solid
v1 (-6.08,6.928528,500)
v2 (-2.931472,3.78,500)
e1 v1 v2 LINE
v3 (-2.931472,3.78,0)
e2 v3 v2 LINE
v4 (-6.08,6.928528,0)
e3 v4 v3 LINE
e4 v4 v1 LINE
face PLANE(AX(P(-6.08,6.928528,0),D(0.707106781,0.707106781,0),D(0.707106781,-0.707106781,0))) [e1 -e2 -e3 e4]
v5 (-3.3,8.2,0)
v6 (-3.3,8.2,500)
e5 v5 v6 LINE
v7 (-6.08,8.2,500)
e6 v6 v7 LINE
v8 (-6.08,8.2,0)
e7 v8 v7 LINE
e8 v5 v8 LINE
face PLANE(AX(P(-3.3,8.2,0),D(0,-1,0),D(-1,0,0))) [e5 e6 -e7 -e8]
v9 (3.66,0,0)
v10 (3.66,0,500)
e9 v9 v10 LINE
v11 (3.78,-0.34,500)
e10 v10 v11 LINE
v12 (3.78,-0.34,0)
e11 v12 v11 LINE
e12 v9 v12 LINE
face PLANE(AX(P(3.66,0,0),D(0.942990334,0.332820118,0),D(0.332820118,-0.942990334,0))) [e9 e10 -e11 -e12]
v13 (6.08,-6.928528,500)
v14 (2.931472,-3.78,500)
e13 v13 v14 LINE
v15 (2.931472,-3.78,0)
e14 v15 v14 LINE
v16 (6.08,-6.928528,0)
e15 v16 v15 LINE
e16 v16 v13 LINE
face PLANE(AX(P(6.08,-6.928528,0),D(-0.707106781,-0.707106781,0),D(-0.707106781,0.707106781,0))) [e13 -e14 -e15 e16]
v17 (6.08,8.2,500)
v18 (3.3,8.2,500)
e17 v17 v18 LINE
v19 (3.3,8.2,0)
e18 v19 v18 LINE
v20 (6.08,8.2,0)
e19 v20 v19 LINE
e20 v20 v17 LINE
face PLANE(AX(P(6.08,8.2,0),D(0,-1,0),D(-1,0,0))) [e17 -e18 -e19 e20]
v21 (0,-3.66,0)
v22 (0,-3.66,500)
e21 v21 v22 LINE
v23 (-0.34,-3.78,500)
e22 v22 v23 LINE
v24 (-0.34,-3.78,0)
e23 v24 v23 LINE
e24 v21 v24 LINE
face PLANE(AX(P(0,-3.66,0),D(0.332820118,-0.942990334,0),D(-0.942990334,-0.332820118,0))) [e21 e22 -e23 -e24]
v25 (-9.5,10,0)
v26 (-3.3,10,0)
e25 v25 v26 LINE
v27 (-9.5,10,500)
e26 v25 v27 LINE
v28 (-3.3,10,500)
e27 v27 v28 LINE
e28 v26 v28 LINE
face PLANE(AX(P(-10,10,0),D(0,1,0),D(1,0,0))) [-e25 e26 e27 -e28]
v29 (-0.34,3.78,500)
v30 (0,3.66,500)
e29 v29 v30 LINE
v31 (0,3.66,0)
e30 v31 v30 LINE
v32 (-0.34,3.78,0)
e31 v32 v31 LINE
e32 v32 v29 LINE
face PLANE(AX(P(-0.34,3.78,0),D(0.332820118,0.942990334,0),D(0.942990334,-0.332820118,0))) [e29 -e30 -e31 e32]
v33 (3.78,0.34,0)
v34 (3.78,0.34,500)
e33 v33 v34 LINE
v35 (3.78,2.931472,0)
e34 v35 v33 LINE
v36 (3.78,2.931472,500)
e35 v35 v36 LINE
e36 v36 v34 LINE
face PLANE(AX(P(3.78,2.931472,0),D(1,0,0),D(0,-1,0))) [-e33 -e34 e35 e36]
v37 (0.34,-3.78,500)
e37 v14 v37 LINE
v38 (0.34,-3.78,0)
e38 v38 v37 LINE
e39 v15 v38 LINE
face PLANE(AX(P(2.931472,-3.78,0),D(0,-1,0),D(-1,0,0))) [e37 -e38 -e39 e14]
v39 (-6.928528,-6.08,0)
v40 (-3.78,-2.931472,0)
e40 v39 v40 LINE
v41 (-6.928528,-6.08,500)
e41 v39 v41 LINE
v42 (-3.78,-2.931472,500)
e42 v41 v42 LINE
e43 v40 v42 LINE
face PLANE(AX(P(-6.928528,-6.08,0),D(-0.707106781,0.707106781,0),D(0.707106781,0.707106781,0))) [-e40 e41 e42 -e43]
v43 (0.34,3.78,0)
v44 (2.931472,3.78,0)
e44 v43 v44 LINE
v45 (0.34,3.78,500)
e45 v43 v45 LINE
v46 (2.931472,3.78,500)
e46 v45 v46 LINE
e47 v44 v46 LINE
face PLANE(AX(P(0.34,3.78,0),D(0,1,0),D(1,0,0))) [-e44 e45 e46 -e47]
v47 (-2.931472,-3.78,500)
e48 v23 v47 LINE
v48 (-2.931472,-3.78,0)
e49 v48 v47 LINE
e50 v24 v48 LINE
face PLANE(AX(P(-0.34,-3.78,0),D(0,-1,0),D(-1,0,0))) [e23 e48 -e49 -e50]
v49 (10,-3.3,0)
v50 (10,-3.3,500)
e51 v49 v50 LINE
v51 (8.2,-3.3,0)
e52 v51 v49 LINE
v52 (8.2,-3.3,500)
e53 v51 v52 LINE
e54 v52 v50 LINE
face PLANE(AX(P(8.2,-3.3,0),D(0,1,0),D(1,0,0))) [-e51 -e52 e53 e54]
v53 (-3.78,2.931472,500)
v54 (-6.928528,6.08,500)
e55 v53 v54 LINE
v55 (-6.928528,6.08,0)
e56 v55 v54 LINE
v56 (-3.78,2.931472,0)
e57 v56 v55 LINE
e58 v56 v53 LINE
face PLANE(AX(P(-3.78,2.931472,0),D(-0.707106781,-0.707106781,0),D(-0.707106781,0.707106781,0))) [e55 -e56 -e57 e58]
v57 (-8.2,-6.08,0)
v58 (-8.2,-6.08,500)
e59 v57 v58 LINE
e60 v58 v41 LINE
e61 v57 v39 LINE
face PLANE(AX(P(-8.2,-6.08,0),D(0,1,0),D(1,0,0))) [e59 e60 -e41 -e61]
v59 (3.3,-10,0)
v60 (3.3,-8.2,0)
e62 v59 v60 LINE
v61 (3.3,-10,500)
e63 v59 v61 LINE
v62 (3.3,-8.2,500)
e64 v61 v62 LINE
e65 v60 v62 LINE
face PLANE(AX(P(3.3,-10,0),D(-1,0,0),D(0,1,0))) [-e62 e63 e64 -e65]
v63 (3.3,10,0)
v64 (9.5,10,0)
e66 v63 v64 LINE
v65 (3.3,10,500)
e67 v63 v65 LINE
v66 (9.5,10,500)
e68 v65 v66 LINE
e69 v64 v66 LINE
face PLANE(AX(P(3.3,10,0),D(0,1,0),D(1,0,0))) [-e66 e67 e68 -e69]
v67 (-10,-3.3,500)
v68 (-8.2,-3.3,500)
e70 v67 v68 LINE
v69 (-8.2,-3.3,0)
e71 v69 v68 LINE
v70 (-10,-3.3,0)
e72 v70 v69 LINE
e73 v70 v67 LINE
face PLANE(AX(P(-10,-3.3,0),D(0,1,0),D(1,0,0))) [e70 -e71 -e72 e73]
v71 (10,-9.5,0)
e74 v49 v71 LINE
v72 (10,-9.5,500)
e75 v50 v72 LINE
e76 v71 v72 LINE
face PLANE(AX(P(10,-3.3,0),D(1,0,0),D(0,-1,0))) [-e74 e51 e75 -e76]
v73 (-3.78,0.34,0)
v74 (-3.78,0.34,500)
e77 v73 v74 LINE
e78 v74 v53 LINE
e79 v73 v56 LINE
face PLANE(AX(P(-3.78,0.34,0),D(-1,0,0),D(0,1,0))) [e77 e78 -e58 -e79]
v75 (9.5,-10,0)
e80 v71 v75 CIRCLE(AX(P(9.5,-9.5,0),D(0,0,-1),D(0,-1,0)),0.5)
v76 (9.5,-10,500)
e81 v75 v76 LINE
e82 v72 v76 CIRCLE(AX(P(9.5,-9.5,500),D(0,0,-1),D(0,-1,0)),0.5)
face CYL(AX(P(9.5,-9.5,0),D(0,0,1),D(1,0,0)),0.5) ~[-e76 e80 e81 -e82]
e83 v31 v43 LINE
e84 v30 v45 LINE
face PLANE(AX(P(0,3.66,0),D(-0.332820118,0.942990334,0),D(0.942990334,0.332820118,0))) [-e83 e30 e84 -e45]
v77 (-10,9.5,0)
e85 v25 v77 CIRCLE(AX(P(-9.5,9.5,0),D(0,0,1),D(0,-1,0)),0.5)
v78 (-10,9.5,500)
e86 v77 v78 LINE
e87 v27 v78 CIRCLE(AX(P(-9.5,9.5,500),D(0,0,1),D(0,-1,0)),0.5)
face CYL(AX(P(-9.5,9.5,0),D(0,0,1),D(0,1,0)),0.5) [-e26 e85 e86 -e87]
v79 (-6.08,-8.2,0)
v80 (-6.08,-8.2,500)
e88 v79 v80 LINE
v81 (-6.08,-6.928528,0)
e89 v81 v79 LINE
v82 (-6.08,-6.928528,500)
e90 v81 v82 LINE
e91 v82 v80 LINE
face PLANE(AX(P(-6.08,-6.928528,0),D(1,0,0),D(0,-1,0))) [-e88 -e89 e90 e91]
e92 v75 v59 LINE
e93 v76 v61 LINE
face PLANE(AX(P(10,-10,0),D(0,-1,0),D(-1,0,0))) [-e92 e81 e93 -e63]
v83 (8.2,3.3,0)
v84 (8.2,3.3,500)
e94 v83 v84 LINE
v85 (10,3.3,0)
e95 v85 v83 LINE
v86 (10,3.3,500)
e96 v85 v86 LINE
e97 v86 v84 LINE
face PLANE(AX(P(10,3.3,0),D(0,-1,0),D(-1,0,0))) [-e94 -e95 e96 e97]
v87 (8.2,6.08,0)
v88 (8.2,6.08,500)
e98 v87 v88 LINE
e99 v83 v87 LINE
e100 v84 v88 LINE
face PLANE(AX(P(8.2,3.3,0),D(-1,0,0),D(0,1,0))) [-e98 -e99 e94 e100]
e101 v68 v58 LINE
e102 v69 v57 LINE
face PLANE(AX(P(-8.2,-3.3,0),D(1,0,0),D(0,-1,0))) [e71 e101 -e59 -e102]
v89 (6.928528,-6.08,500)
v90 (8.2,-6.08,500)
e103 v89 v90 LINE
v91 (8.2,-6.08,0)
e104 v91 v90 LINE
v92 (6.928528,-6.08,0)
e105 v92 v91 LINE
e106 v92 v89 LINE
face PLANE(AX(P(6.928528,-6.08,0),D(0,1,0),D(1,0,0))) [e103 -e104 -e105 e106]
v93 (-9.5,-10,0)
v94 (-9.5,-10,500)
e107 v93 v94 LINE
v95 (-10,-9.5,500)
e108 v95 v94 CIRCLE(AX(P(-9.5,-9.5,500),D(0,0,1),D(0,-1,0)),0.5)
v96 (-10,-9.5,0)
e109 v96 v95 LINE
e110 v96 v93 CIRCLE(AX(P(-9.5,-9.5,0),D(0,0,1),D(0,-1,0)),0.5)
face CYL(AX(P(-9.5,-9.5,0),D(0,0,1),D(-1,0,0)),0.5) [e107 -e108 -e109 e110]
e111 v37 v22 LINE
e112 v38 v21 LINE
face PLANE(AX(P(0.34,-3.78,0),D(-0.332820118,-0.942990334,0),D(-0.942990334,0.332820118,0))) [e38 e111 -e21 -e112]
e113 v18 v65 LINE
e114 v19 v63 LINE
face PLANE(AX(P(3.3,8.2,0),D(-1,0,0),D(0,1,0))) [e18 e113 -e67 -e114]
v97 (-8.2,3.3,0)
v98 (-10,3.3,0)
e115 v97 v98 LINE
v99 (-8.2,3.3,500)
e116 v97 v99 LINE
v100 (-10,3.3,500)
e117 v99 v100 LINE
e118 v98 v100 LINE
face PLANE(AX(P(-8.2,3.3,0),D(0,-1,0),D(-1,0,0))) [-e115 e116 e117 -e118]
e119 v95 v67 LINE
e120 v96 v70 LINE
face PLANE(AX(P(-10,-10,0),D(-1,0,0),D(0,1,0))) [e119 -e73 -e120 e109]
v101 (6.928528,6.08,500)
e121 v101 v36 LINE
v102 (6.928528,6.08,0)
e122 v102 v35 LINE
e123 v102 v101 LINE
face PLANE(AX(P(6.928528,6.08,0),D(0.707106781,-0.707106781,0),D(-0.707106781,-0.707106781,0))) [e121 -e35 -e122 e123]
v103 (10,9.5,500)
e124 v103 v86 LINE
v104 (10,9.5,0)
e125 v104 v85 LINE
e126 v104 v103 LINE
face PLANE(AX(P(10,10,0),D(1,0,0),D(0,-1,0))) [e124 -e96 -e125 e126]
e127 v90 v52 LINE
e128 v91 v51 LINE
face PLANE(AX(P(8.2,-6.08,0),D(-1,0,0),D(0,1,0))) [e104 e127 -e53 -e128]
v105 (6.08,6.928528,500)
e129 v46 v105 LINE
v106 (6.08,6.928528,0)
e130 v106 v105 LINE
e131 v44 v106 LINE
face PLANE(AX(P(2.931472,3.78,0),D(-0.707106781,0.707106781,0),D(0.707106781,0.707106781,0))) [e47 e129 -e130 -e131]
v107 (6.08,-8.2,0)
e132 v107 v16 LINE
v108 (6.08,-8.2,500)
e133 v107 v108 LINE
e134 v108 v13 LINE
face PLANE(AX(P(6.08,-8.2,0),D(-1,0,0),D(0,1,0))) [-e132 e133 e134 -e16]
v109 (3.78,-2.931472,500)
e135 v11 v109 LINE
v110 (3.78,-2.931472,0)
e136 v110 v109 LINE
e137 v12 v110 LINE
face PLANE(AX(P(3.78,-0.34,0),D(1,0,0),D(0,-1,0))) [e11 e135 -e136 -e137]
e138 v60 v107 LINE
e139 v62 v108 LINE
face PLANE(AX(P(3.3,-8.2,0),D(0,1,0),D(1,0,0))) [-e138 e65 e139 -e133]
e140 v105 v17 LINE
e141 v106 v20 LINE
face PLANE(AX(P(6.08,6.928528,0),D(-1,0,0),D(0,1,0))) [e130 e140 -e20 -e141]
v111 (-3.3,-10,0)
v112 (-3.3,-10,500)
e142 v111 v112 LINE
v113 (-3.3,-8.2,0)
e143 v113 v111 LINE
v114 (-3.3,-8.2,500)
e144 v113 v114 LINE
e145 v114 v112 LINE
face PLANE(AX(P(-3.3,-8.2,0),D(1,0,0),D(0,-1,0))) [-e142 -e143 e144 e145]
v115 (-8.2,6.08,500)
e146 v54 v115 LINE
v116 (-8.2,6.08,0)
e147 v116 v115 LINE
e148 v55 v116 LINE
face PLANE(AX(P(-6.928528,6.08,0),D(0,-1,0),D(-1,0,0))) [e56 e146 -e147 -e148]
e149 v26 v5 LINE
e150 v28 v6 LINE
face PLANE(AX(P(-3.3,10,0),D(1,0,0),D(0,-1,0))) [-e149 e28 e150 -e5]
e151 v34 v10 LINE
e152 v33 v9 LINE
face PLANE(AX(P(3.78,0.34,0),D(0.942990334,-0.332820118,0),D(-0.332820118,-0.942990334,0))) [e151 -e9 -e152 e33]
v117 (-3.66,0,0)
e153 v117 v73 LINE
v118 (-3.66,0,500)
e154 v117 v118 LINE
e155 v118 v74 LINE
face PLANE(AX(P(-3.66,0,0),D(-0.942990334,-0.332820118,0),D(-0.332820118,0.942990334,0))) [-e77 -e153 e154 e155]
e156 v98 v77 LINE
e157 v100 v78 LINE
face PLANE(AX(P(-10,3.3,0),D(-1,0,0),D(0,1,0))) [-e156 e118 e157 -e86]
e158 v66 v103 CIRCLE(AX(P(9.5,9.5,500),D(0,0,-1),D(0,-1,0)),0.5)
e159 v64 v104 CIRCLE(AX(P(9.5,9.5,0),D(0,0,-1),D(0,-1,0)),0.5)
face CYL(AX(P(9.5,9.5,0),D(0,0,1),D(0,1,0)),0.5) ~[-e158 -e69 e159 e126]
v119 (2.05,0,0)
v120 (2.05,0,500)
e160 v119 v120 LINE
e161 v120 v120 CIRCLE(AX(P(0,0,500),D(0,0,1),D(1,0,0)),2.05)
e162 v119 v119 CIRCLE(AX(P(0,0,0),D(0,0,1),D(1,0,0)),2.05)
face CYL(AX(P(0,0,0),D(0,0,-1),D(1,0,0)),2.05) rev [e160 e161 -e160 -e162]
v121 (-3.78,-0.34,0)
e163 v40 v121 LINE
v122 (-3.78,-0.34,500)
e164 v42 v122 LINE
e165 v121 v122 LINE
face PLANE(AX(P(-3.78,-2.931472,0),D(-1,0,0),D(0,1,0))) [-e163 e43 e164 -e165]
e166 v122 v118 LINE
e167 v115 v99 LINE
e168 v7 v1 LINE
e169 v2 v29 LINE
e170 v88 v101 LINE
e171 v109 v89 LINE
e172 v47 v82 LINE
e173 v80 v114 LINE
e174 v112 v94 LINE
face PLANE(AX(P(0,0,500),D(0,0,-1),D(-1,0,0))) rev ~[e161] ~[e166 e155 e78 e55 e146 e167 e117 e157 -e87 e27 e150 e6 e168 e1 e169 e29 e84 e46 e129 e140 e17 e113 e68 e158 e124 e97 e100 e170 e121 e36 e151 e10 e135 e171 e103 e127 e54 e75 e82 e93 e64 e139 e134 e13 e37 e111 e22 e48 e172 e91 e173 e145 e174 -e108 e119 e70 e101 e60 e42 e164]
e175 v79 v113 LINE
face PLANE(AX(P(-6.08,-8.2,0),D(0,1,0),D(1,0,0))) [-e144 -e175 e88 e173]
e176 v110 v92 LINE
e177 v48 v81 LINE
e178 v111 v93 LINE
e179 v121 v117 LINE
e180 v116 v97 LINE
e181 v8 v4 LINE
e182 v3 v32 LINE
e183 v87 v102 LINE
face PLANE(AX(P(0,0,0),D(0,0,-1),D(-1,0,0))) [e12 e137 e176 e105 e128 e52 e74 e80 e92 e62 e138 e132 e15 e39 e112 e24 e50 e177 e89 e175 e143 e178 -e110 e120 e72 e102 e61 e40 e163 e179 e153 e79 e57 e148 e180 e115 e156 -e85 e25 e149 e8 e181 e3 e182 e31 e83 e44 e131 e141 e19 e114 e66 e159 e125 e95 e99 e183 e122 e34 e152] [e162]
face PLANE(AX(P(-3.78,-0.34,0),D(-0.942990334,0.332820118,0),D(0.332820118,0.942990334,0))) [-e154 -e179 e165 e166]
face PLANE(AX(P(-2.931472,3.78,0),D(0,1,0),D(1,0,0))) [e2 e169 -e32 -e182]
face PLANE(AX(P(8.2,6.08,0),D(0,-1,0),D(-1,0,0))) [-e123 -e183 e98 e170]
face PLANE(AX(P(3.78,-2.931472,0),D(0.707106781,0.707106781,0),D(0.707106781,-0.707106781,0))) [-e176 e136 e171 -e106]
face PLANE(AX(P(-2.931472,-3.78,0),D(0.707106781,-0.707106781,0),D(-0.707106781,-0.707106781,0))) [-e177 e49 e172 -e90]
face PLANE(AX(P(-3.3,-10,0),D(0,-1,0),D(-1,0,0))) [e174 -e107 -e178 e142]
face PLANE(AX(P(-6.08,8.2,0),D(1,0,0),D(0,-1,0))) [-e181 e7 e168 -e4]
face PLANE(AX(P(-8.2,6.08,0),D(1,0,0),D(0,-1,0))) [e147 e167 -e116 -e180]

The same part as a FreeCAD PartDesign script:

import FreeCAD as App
import Part
import Sketcher

V = App.Vector


def edges_at(feature, points):
    """Names of the edges that pass closest to the given points."""
    edges = feature.Shape.Edges
    near = lambda p: min(range(len(edges)), key=lambda i: edges[i].distToShape(Part.Vertex(*p))[0])
    return sorted({f"Edge{near(p) + 1}" for p in points})


def add_polygon(sketch, points):
    """Adds a closed chain of lines whose ends are joined by coincident constraints."""
    first, n = sketch.GeometryCount, len(points)
    for a, b in zip(points, points[1:] + points[:1]):
        sketch.addGeometry(Part.LineSegment(App.Vector(*a, 0), App.Vector(*b, 0)), False)
    for i in range(n):
        sketch.addConstraint(Sketcher.Constraint("Coincident", first + i, 2, first + (i + 1) % n, 1))

doc = App.newDocument("Part")
body = doc.addObject("PartDesign::Body", "Body")

# Sketch on XY plane
sketch1 = body.newObject("Sketcher::SketchObject", "Sketch")
sketch1.AttachmentSupport = (doc.getObject("XY_Plane"), [""])
sketch1.MapMode = "FlatFace"
add_polygon(sketch1, [(-3.3, 8.2), (-3.3, 10), (-10, 10), (-10, 3.3), (-8.2, 3.3), (-8.2, 6.08), (-6.928528, 6.08), (-3.78, 2.931472), (-3.78, 0.34), (-3.66, 0), (-3.78, -0.34), (-3.78, -2.931472), (-6.928528, -6.08), (-8.2, -6.08), (-8.2, -3.3), (-10, -3.3), (-10, -10), (-3.3, -10), (-3.3, -8.2), (-6.08, -8.2), (-6.08, -6.928528), (-2.931472, -3.78), (-0.34, -3.78), (0, -3.66), (0.34, -3.78), (2.931472, -3.78), (6.08, -6.928528), (6.08, -8.2), (3.3, -8.2), (3.3, -10), (10, -10), (10, -3.3), (8.2, -3.3), (8.2, -6.08), (6.928528, -6.08), (3.78, -2.931472), (3.78, -0.34), (3.66, 0), (3.78, 0.34), (3.78, 2.931472), (6.928528, 6.08), (8.2, 6.08), (8.2, 3.3), (10, 3.3), (10, 10), (3.3, 10), (3.3, 8.2), (6.08, 8.2), (6.08, 6.928528), (2.931472, 3.78), (0.34, 3.78), (0, 3.66), (-0.34, 3.78), (-2.931472, 3.78), (-6.08, 6.928528), (-6.08, 8.2)])  # lines 0-55
sketch1.addGeometry(Part.Circle(V(0, 0, 0), V(0, 0, 1), 2.05), False)  # 56
sketch1.addConstraint([
    Sketcher.Constraint("Vertical", 0),
    Sketcher.Constraint("Horizontal", 1),
    Sketcher.Constraint("Vertical", 2),
    Sketcher.Constraint("Horizontal", 3),
    Sketcher.Constraint("Vertical", 4),
    Sketcher.Constraint("Horizontal", 5),
    Sketcher.Constraint("Vertical", 7),
    Sketcher.Constraint("Vertical", 10),
    Sketcher.Constraint("Horizontal", 12),
    Sketcher.Constraint("Vertical", 13),
    Sketcher.Constraint("Horizontal", 14),
    Sketcher.Constraint("Vertical", 15),
    Sketcher.Constraint("Horizontal", 16),
    Sketcher.Constraint("Vertical", 17),
    Sketcher.Constraint("Horizontal", 18),
    Sketcher.Constraint("Vertical", 19),
    Sketcher.Constraint("Horizontal", 21),
    Sketcher.Constraint("Horizontal", 24),
    Sketcher.Constraint("Vertical", 26),
    Sketcher.Constraint("Horizontal", 27),
    Sketcher.Constraint("Vertical", 28),
    Sketcher.Constraint("Horizontal", 29),
    Sketcher.Constraint("Vertical", 30),
    Sketcher.Constraint("Horizontal", 31),
    Sketcher.Constraint("Vertical", 32),
    Sketcher.Constraint("Horizontal", 33),
    Sketcher.Constraint("Vertical", 35),
    Sketcher.Constraint("Vertical", 38),
    Sketcher.Constraint("Horizontal", 40),
    Sketcher.Constraint("Vertical", 41),
    Sketcher.Constraint("Horizontal", 42),
    Sketcher.Constraint("Vertical", 43),
    Sketcher.Constraint("Horizontal", 44),
    Sketcher.Constraint("Vertical", 45),
    Sketcher.Constraint("Horizontal", 46),
    Sketcher.Constraint("Vertical", 47),
    Sketcher.Constraint("Horizontal", 49),
    Sketcher.Constraint("Horizontal", 52),
    Sketcher.Constraint("Vertical", 54),
    Sketcher.Constraint("Horizontal", 55),
    Sketcher.Constraint("Coincident", 56, 3, -1, 1),
    Sketcher.Constraint("Symmetric", 0, 2, 28, 2, -1, 1),
    Sketcher.Constraint("Symmetric", 2, 2, 30, 2, -1, 1),
    Sketcher.Constraint("Symmetric", 4, 2, 32, 2, -1, 1),
    Sketcher.Constraint("Symmetric", 6, 2, 34, 2, -1, 1),
    Sketcher.Constraint("Symmetric", 8, 2, 36, 2, -1, 1),
    Sketcher.Constraint("Symmetric", 9, 2, 37, 2, -1, 1),
    Sketcher.Constraint("Symmetric", 11, 2, 39, 2, -1, 1),
    Sketcher.Constraint("Symmetric", 13, 2, 41, 2, -1, 1),
    Sketcher.Constraint("Symmetric", 15, 2, 43, 2, -1, 1),
    Sketcher.Constraint("Symmetric", 17, 2, 45, 2, -1, 1),
    Sketcher.Constraint("Symmetric", 19, 2, 47, 2, -1, 1),
    Sketcher.Constraint("Symmetric", 20, 2, 48, 2, -1, 1),
    Sketcher.Constraint("Symmetric", 22, 2, 50, 2, -1, 1),
    Sketcher.Constraint("Symmetric", 23, 2, 51, 2, -1, 1),
    Sketcher.Constraint("Symmetric", 25, 2, 53, 2, -1, 1),
    Sketcher.Constraint("Symmetric", 21, 2, 23, 2, -2),
    Sketcher.Constraint("Symmetric", 19, 2, 25, 2, -2),
    Sketcher.Constraint("Symmetric", 17, 2, 27, 2, -2),
    Sketcher.Constraint("Symmetric", 15, 2, 29, 2, -2),
    Sketcher.Constraint("Symmetric", 13, 2, 31, 2, -2),
    Sketcher.Constraint("Symmetric", 11, 2, 33, 2, -2),
    Sketcher.Constraint("Symmetric", 10, 2, 34, 2, -2),
    Sketcher.Constraint("PointOnObject", 8, 2, -1),
    Sketcher.Constraint("PointOnObject", 22, 2, -2),
    Sketcher.Constraint("Perpendicular", 6, 11),
    Sketcher.Constraint("Parallel", 11, 20),
    Sketcher.Constraint("Perpendicular", 8, 22),
    Sketcher.Constraint("Perpendicular", 9, 23),
    Sketcher.Constraint("Perpendicular", 20, 25),
    Sketcher.Constraint("Parallel", 25, 34),
    Sketcher.Constraint("Perpendicular", 22, 36),
    Sketcher.Constraint("Perpendicular", 34, 39),
    Sketcher.Constraint("Perpendicular", 36, 50),
    Sketcher.Constraint("Perpendicular", 48, 53),
    Sketcher.Constraint("Horizontal", 46, 2, 54, 2),
    Sketcher.Constraint("Equal", 42, 0),
    Sketcher.Constraint("Equal", 44, 2),
    Sketcher.Constraint("Equal", 55, 4),
    Sketcher.Constraint("Equal", 52, 7),
    Sketcher.Constraint("Equal", 40, 19),
    Sketcher.Constraint("Equal", 11, 20),
    Sketcher.Constraint("Equal", 9, 22),
    Sketcher.Constraint("Diameter", 56, 4.1),
    Sketcher.Constraint("DistanceX", 1, 2, 1, 1, 6.7),
    Sketcher.Constraint("DistanceX", 3, 1, 3, 2, 1.8),
    Sketcher.Constraint("DistanceY", -1, 1, 0, 2, 10.0),
    Sketcher.Constraint("DistanceX", 18, 2, 18, 1, 2.78),
    Sketcher.Constraint("DistanceX", 6, 2, -1, 1, 3.78),
    Sketcher.Constraint("DistanceY", -1, 1, 7, 2, 0.34),
    Sketcher.Constraint("DistanceX", 8, 2, -1, 1, 3.66),
    Sketcher.Constraint("DistanceX", 5, 1, 5, 2, 1.271472),
])
pad1 = body.newObject("PartDesign::Pad", "Pad")
pad1.Profile = sketch1
pad1.Length = 500
doc.recompute()

fillet = body.newObject("PartDesign::Fillet", "Fillet")
fillet.Base = (pad1, edges_at(pad1, [
    (10, 10, 250),
    (10, -10, 250),
    (-10, -10, 250),
    (-10, 10, 250),
]))
fillet.Radius = 0.5

doc.recompute()
